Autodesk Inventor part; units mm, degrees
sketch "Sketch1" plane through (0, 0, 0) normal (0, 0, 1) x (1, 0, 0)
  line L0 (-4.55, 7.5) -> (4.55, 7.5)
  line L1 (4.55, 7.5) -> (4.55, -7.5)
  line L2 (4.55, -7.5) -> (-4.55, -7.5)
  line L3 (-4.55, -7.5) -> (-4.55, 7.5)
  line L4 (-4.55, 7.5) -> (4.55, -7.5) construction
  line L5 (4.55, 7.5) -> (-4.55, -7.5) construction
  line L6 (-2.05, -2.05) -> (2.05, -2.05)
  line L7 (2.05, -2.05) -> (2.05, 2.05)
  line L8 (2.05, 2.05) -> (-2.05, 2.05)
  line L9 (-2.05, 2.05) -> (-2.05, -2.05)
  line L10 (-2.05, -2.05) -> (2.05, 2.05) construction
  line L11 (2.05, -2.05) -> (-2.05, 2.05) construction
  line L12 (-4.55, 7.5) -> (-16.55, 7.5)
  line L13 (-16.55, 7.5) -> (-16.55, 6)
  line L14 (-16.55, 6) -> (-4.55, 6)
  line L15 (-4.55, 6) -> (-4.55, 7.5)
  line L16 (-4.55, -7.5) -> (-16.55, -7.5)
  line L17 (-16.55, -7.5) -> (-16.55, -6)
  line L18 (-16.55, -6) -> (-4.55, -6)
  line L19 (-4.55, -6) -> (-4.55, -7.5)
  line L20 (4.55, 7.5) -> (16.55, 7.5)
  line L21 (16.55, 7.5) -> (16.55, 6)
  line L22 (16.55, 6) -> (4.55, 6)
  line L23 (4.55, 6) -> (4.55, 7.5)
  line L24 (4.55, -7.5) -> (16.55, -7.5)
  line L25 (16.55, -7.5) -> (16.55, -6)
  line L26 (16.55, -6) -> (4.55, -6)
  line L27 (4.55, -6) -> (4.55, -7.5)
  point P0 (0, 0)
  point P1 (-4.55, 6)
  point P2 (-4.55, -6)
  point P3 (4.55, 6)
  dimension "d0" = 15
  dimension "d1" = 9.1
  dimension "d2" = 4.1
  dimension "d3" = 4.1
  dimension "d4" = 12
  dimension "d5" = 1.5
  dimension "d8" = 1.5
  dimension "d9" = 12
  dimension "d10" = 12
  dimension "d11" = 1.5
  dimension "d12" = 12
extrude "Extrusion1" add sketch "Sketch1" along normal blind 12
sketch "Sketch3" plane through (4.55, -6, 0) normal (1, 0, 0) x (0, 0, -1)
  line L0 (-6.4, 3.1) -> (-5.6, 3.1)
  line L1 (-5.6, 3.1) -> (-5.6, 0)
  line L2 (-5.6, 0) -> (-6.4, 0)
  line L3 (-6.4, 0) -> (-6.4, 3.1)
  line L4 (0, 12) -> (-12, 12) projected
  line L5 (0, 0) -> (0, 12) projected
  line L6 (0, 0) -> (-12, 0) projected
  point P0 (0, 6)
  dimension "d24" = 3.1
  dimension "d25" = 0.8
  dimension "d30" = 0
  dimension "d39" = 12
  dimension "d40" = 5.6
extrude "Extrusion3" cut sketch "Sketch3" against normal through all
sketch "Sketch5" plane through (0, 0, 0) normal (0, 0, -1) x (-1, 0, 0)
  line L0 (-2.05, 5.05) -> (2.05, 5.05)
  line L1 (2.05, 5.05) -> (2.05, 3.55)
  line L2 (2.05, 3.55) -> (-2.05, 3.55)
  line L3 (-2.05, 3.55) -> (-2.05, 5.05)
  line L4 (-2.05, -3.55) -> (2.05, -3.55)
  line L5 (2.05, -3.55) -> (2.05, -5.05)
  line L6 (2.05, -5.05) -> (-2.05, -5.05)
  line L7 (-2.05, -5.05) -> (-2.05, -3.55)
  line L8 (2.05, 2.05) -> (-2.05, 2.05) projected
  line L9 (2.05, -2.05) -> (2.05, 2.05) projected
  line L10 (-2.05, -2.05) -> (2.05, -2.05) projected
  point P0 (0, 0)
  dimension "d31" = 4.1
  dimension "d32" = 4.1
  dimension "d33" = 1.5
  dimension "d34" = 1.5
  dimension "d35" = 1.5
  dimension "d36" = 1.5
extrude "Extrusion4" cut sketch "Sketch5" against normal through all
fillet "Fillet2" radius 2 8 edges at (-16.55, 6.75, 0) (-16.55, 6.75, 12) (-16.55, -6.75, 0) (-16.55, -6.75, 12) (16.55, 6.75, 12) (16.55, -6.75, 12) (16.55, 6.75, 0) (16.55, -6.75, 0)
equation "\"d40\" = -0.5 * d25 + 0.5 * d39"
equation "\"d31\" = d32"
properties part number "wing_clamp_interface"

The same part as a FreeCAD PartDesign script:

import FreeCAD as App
import Part
import Sketcher
from FreeCAD import Vector


def edges_at(feature, points):
    """Names of the edges that pass closest to the given points."""
    edges = feature.Shape.Edges
    near = lambda p: min(range(len(edges)), key=lambda i: edges[i].distToShape(Part.Vertex(*p))[0])
    return sorted({f"Edge{near(p) + 1}" for p in points})

doc = App.newDocument("Part")
body = doc.addObject("PartDesign::Body", "Body")

# Sketch on XY plane
sketch1 = body.newObject("Sketcher::SketchObject", "Sketch")
sketch1.AttachmentSupport = (doc.getObject("XY_Plane"), [""])
sketch1.MapMode = "FlatFace"
sketch1.addGeometry([
    Part.LineSegment(Vector(-16.6, 7.5, 0), Vector(-16.6, 6, 0)),  # 0
    Part.LineSegment(Vector(-16.6, 6, 0), Vector(-4.5, 6, 0)),  # 1
    Part.LineSegment(Vector(-4.5, 6, 0), Vector(-4.5, -6, 0)),  # 2
    Part.LineSegment(Vector(-4.5, -6, 0), Vector(-16.6, -6, 0)),  # 3
    Part.LineSegment(Vector(-16.6, -6, 0), Vector(-16.6, -7.5, 0)),  # 4
    Part.LineSegment(Vector(-16.6, -7.5, 0), Vector(16.6, -7.5, 0)),  # 5
    Part.LineSegment(Vector(16.6, -7.5, 0), Vector(16.6, -6, 0)),  # 6
    Part.LineSegment(Vector(16.6, -6, 0), Vector(4.5, -6, 0)),  # 7
    Part.LineSegment(Vector(4.5, -6, 0), Vector(4.5, 6, 0)),  # 8
    Part.LineSegment(Vector(4.5, 6, 0), Vector(16.6, 6, 0)),  # 9
    Part.LineSegment(Vector(16.6, 6, 0), Vector(16.6, 7.5, 0)),  # 10
    Part.LineSegment(Vector(16.6, 7.5, 0), Vector(-16.6, 7.5, 0)),  # 11
    Part.LineSegment(Vector(2, -2, 0), Vector(-2, -2, 0)),  # 12
    Part.LineSegment(Vector(-2, -2, 0), Vector(-2, 2, 0)),  # 13
    Part.LineSegment(Vector(-2, 2, 0), Vector(2, 2, 0)),  # 14
    Part.LineSegment(Vector(2, 2, 0), Vector(2, -2, 0)),  # 15
], False)
sketch1.addConstraint([
    Sketcher.Constraint("Coincident", 0, 2, 1, 1),
    Sketcher.Constraint("Coincident", 1, 2, 2, 1),
    Sketcher.Constraint("Coincident", 2, 2, 3, 1),
    Sketcher.Constraint("Coincident", 3, 2, 4, 1),
    Sketcher.Constraint("Coincident", 4, 2, 5, 1),
    Sketcher.Constraint("Coincident", 5, 2, 6, 1),
    Sketcher.Constraint("Coincident", 6, 2, 7, 1),
    Sketcher.Constraint("Coincident", 7, 2, 8, 1),
    Sketcher.Constraint("Coincident", 8, 2, 9, 1),
    Sketcher.Constraint("Coincident", 9, 2, 10, 1),
    Sketcher.Constraint("Coincident", 10, 2, 11, 1),
    Sketcher.Constraint("Coincident", 11, 2, 0, 1),
    Sketcher.Constraint("Coincident", 12, 2, 13, 1),
    Sketcher.Constraint("Coincident", 13, 2, 14, 1),
    Sketcher.Constraint("Coincident", 14, 2, 15, 1),
    Sketcher.Constraint("Coincident", 15, 2, 12, 1),
    Sketcher.Constraint("Vertical", 0),
    Sketcher.Constraint("Horizontal", 1),
    Sketcher.Constraint("Vertical", 2),
    Sketcher.Constraint("Horizontal", 3),
    Sketcher.Constraint("Vertical", 4),
    Sketcher.Constraint("Horizontal", 5),
    Sketcher.Constraint("Vertical", 6),
    Sketcher.Constraint("Horizontal", 7),
    Sketcher.Constraint("Vertical", 8),
    Sketcher.Constraint("Horizontal", 9),
    Sketcher.Constraint("Vertical", 10),
    Sketcher.Constraint("Horizontal", 11),
    Sketcher.Constraint("Horizontal", 12),
    Sketcher.Constraint("Vertical", 13),
    Sketcher.Constraint("Horizontal", 14),
    Sketcher.Constraint("Vertical", 15),
    Sketcher.Constraint("Symmetric", 0, 2, 6, 2, -1, 1),
    Sketcher.Constraint("Symmetric", 2, 2, 8, 2, -1, 1),
    Sketcher.Constraint("Symmetric", 4, 2, 10, 2, -1, 1),
    Sketcher.Constraint("Symmetric", 12, 2, 14, 2, -1, 1),
    Sketcher.Constraint("Symmetric", 3, 2, 6, 2, -2),
    Sketcher.Constraint("Equal", 9, 2),
    Sketcher.Constraint("Equal", 14, 13),
    Sketcher.Constraint("DistanceX", 1, 1, 1, 2, 12.0),
    Sketcher.Constraint("DistanceX", 12, 2, 12, 1, 4.1),
    Sketcher.Constraint("DistanceY", 0, 2, 0, 1, 1.5),
    Sketcher.Constraint("DistanceX", 2, 2, 7, 2, 9.1),
])
pad1 = body.newObject("PartDesign::Pad", "Pad")
pad1.Profile = sketch1
pad1.Length = 12

# Sketch on YZ plane
sketch2 = body.newObject("Sketcher::SketchObject", "Sketch001")
sketch2.AttachmentSupport = (doc.getObject("YZ_Plane"), [""])
sketch2.MapMode = "FlatFace"
sketch2.AttachmentOffset = App.Placement(Vector(0, 0, 4.55), App.Rotation())
sketch2.addGeometry([
    Part.LineSegment(Vector(-2.9, 5.6, 0), Vector(-2.9, 6.4, 0)),
    Part.LineSegment(Vector(-2.9, 6.4, 0), Vector(-6, 6.4, 0)),
    Part.LineSegment(Vector(-6, 6.4, 0), Vector(-6, 5.6, 0)),
    Part.LineSegment(Vector(-6, 5.6, 0), Vector(-2.9, 5.6, 0)),
], False)
sketch2.addConstraint([
    Sketcher.Constraint("Coincident", 0, 2, 1, 1),
    Sketcher.Constraint("Coincident", 1, 2, 2, 1),
    Sketcher.Constraint("Coincident", 2, 2, 3, 1),
    Sketcher.Constraint("Coincident", 3, 2, 0, 1),
    Sketcher.Constraint("Vertical", 0),
    Sketcher.Constraint("Horizontal", 1),
    Sketcher.Constraint("Vertical", 2),
    Sketcher.Constraint("Horizontal", 3),
    Sketcher.Constraint("DistanceX", 1, 2, 1, 1, 3.1),
    Sketcher.Constraint("DistanceY", 0, 1, 0, 2, 0.8),
    Sketcher.Constraint("DistanceY", -1, 1, 2, 2, 5.6),
    Sketcher.Constraint("DistanceX", 1, 2, -1, 1, 6.0),
])
pocket1 = body.newObject("PartDesign::Pocket", "Pocket")
pocket1.Profile = sketch2
pocket1.Type = "ThroughAll"

# Sketch on XY plane
sketch3 = body.newObject("Sketcher::SketchObject", "Sketch002")
sketch3.AttachmentSupport = (doc.getObject("XY_Plane"), [""])
sketch3.MapMode = "FlatFace"
sketch3.addGeometry([
    Part.LineSegment(Vector(-2, 5, 0), Vector(2, 5, 0)),  # 0
    Part.LineSegment(Vector(2, 5, 0), Vector(2, 3.5, 0)),  # 1
    Part.LineSegment(Vector(2, 3.5, 0), Vector(-2, 3.5, 0)),  # 2
    Part.LineSegment(Vector(-2, 3.5, 0), Vector(-2, 5, 0)),  # 3
    Part.LineSegment(Vector(-2, -3.5, 0), Vector(2, -3.5, 0)),  # 4
    Part.LineSegment(Vector(2, -3.5, 0), Vector(2, -5, 0)),  # 5
    Part.LineSegment(Vector(2, -5, 0), Vector(-2, -5, 0)),  # 6
    Part.LineSegment(Vector(-2, -5, 0), Vector(-2, -3.5, 0)),  # 7
], False)
sketch3.addConstraint([
    Sketcher.Constraint("Coincident", 0, 2, 1, 1),
    Sketcher.Constraint("Coincident", 1, 2, 2, 1),
    Sketcher.Constraint("Coincident", 2, 2, 3, 1),
    Sketcher.Constraint("Coincident", 3, 2, 0, 1),
    Sketcher.Constraint("Coincident", 4, 2, 5, 1),
    Sketcher.Constraint("Coincident", 5, 2, 6, 1),
    Sketcher.Constraint("Coincident", 6, 2, 7, 1),
    Sketcher.Constraint("Coincident", 7, 2, 4, 1),
    Sketcher.Constraint("Horizontal", 0),
    Sketcher.Constraint("Vertical", 1),
    Sketcher.Constraint("Horizontal", 2),
    Sketcher.Constraint("Vertical", 3),
    Sketcher.Constraint("Horizontal", 4),
    Sketcher.Constraint("Vertical", 5),
    Sketcher.Constraint("Horizontal", 6),
    Sketcher.Constraint("Vertical", 7),
    Sketcher.Constraint("Symmetric", 2, 2, 4, 2, -1, 1),
    Sketcher.Constraint("Symmetric", 0, 2, 6, 2, -1, 1),
    Sketcher.Constraint("Vertical", 1, 2, 4, 2),
    Sketcher.Constraint("DistanceX", 0, 1, 0, 2, 4.1),
    Sketcher.Constraint("DistanceY", 1, 2, 1, 1, 1.5),
    Sketcher.Constraint("DistanceY", 4, 2, 1, 2, 7.1),
])
pocket2 = body.newObject("PartDesign::Pocket", "Pocket001")
pocket2.Profile = sketch3
pocket2.Type = "ThroughAll"
pocket2.Reversed = True
doc.recompute()

fillet = body.newObject("PartDesign::Fillet", "Fillet")
fillet.Base = (pocket2, edges_at(pocket2, [
    (-16.55, 6.75, 0),
    (-16.55, 6.75, 12),
    (-16.55, -6.75, 0),
    (-16.55, -6.75, 12),
    (16.55, 6.75, 12),
    (16.55, -6.75, 12),
    (16.55, 6.75, 0),
    (16.55, -6.75, 0),
]))
fillet.Radius = 2

doc.recompute()
